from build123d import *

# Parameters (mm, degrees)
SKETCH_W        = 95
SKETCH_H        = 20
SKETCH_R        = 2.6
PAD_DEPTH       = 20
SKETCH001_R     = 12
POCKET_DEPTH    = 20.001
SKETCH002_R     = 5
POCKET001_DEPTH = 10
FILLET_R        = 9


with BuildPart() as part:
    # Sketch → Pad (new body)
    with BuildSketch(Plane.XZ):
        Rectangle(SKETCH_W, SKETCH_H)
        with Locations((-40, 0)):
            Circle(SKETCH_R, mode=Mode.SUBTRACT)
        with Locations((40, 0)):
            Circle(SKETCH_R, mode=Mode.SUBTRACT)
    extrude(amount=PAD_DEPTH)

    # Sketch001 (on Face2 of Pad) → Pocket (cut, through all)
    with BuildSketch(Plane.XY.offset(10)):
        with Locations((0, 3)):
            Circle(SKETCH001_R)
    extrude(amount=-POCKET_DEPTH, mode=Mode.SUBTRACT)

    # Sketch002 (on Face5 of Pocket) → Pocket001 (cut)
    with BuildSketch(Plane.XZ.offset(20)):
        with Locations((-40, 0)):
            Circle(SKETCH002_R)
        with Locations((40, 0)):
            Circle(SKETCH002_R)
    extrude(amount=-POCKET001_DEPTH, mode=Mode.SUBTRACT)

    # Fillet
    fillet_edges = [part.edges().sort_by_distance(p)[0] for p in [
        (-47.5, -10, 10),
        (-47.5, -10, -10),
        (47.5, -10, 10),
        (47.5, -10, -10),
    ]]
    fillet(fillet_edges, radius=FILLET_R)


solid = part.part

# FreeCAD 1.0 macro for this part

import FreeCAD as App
import Part
import Sketcher
from FreeCAD import Vector
Q = App.Units.Quantity


def edges_at(feature, points):
    """Names of the edges that pass closest to the given points."""
    edges = feature.Shape.Edges
    near = lambda p: min(range(len(edges)), key=lambda i: edges[i].distToShape(Part.Vertex(*p))[0])
    return sorted({f"Edge{near(p) + 1}" for p in points})


def add_polygon(sketch, points):
    """Adds a closed chain of lines whose ends are joined by coincident constraints."""
    first, n = sketch.GeometryCount, len(points)
    for a, b in zip(points, points[1:] + points[:1]):
        sketch.addGeometry(Part.LineSegment(App.Vector(*a, 0), App.Vector(*b, 0)), False)
    for i in range(n):
        sketch.addConstraint(Sketcher.Constraint("Coincident", first + i, 2, first + (i + 1) % n, 1))

doc = App.newDocument("Part")
params = doc.addObject("Spreadsheet::Sheet", "Params")
for row, (alias, value) in enumerate([
    ("sketch1_diameter", "5.2 mm"),
    ("sketch1_width", "95 mm"),
    ("sketch1_height", "20 mm"),
    ("pad1_length", "20 mm"),
    ("sketch2_diameter", "24 mm"),
    ("sketch3_diameter", "10 mm"),
    ("pocket2_length", "10 mm"),
    ("fillet_radius", "9 mm"),
], start=1):
    params.set(f"A{row}", alias)
    params.set(f"B{row}", "=" + value)
    params.setAlias(f"B{row}", alias)

body = doc.addObject("PartDesign::Body", "Body")

sketch1 = body.newObject("Sketcher::SketchObject", "Sketch")
sketch1.AttachmentSupport = (doc.getObject("XZ_Plane"), [""])
sketch1.MapMode = "FlatFace"
add_polygon(sketch1, [(-47.5, 10), (-47.5, -10), (47.5, -10), (47.5, 10)])
sketch1.addGeometry(Part.Circle(Vector(-40, 0, 0), Vector(0, 0, 1), 2.6), False)
sketch1.addGeometry(Part.Circle(Vector(40, 0, 0), Vector(0, 0, 1), 2.6), False)
sketch1.addConstraint([
    Sketcher.Constraint("Vertical", 0),
    Sketcher.Constraint("Horizontal", 1),
    Sketcher.Constraint("Vertical", 2),
    Sketcher.Constraint("Horizontal", 3),
    Sketcher.Constraint("Equal", 4, 5),
    Sketcher.Constraint("Symmetric", 4, 3, 5, 3, -1, 1),
    Sketcher.Constraint("Symmetric", 0, 2, 2, 2, -1, 1),
    Sketcher.Constraint("PointOnObject", 4, 3, -1),
    Sketcher.Constraint("Diameter", 4, Q("5.2 mm")),
    Sketcher.Constraint("DistanceX", 1, 1, 1, 2, Q("95 mm")),
    Sketcher.Constraint("DistanceY", 0, 2, 0, 1, Q("20 mm")),
    Sketcher.Constraint("DistanceX", 4, 3, -1, 1, Q("40 mm")),
])
sketch1.setExpression("Constraints[12]", "Params.sketch1_diameter")
sketch1.setExpression("Constraints[13]", "Params.sketch1_width")
sketch1.setExpression("Constraints[14]", "Params.sketch1_height")
pad1 = body.newObject("PartDesign::Pad", "Pad")
pad1.Profile = sketch1
pad1.setExpression("Length", "Params.pad1_length")

sketch2 = body.newObject("Sketcher::SketchObject", "Sketch001")
sketch2.AttachmentSupport = (doc.getObject("XY_Plane"), [""])
sketch2.MapMode = "FlatFace"
sketch2.AttachmentOffset = App.Placement(Vector(0, 0, 10), App.Rotation())
sketch2.addGeometry(Part.Circle(Vector(0, 3, 0), Vector(0, 0, 1), 12), False)
sketch2.addConstraint([
    Sketcher.Constraint("PointOnObject", 0, 3, -2),
    Sketcher.Constraint("Diameter", 0, Q("24 mm")),
    Sketcher.Constraint("DistanceY", -1, 1, 0, 3, Q("3 mm")),
])
sketch2.setExpression("Constraints[1]", "Params.sketch2_diameter")
pocket1 = body.newObject("PartDesign::Pocket", "Pocket")
pocket1.Profile = sketch2
pocket1.Type = "ThroughAll"

sketch3 = body.newObject("Sketcher::SketchObject", "Sketch002")
sketch3.AttachmentSupport = (doc.getObject("XZ_Plane"), [""])
sketch3.MapMode = "FlatFace"
sketch3.AttachmentOffset = App.Placement(Vector(0, 0, 20), App.Rotation())
sketch3.addGeometry([
    Part.Circle(Vector(-40, 0, 0), Vector(0, 0, 1), 5),
    Part.Circle(Vector(40, 0, 0), Vector(0, 0, 1), 5),
], False)
sketch3.addConstraint([
    Sketcher.Constraint("Equal", 0, 1),
    Sketcher.Constraint("Symmetric", 0, 3, 1, 3, -1, 1),
    Sketcher.Constraint("PointOnObject", 0, 3, -1),
    Sketcher.Constraint("Diameter", 0, Q("10 mm")),
    Sketcher.Constraint("DistanceX", 0, 3, -1, 1, Q("40 mm")),
])
sketch3.setExpression("Constraints[3]", "Params.sketch3_diameter")
pocket2 = body.newObject("PartDesign::Pocket", "Pocket001")
pocket2.Profile = sketch3
pocket2.setExpression("Length", "Params.pocket2_length")
doc.recompute()

fillet = body.newObject("PartDesign::Fillet", "Fillet")
fillet.Base = (pocket2, edges_at(pocket2, [
    (-47.5, -10, 10),
    (-47.5, -10, -10),
    (47.5, -10, 10),
    (47.5, -10, -10),
]))
fillet.setExpression("Radius", "Params.fillet_radius")

doc.recompute()
